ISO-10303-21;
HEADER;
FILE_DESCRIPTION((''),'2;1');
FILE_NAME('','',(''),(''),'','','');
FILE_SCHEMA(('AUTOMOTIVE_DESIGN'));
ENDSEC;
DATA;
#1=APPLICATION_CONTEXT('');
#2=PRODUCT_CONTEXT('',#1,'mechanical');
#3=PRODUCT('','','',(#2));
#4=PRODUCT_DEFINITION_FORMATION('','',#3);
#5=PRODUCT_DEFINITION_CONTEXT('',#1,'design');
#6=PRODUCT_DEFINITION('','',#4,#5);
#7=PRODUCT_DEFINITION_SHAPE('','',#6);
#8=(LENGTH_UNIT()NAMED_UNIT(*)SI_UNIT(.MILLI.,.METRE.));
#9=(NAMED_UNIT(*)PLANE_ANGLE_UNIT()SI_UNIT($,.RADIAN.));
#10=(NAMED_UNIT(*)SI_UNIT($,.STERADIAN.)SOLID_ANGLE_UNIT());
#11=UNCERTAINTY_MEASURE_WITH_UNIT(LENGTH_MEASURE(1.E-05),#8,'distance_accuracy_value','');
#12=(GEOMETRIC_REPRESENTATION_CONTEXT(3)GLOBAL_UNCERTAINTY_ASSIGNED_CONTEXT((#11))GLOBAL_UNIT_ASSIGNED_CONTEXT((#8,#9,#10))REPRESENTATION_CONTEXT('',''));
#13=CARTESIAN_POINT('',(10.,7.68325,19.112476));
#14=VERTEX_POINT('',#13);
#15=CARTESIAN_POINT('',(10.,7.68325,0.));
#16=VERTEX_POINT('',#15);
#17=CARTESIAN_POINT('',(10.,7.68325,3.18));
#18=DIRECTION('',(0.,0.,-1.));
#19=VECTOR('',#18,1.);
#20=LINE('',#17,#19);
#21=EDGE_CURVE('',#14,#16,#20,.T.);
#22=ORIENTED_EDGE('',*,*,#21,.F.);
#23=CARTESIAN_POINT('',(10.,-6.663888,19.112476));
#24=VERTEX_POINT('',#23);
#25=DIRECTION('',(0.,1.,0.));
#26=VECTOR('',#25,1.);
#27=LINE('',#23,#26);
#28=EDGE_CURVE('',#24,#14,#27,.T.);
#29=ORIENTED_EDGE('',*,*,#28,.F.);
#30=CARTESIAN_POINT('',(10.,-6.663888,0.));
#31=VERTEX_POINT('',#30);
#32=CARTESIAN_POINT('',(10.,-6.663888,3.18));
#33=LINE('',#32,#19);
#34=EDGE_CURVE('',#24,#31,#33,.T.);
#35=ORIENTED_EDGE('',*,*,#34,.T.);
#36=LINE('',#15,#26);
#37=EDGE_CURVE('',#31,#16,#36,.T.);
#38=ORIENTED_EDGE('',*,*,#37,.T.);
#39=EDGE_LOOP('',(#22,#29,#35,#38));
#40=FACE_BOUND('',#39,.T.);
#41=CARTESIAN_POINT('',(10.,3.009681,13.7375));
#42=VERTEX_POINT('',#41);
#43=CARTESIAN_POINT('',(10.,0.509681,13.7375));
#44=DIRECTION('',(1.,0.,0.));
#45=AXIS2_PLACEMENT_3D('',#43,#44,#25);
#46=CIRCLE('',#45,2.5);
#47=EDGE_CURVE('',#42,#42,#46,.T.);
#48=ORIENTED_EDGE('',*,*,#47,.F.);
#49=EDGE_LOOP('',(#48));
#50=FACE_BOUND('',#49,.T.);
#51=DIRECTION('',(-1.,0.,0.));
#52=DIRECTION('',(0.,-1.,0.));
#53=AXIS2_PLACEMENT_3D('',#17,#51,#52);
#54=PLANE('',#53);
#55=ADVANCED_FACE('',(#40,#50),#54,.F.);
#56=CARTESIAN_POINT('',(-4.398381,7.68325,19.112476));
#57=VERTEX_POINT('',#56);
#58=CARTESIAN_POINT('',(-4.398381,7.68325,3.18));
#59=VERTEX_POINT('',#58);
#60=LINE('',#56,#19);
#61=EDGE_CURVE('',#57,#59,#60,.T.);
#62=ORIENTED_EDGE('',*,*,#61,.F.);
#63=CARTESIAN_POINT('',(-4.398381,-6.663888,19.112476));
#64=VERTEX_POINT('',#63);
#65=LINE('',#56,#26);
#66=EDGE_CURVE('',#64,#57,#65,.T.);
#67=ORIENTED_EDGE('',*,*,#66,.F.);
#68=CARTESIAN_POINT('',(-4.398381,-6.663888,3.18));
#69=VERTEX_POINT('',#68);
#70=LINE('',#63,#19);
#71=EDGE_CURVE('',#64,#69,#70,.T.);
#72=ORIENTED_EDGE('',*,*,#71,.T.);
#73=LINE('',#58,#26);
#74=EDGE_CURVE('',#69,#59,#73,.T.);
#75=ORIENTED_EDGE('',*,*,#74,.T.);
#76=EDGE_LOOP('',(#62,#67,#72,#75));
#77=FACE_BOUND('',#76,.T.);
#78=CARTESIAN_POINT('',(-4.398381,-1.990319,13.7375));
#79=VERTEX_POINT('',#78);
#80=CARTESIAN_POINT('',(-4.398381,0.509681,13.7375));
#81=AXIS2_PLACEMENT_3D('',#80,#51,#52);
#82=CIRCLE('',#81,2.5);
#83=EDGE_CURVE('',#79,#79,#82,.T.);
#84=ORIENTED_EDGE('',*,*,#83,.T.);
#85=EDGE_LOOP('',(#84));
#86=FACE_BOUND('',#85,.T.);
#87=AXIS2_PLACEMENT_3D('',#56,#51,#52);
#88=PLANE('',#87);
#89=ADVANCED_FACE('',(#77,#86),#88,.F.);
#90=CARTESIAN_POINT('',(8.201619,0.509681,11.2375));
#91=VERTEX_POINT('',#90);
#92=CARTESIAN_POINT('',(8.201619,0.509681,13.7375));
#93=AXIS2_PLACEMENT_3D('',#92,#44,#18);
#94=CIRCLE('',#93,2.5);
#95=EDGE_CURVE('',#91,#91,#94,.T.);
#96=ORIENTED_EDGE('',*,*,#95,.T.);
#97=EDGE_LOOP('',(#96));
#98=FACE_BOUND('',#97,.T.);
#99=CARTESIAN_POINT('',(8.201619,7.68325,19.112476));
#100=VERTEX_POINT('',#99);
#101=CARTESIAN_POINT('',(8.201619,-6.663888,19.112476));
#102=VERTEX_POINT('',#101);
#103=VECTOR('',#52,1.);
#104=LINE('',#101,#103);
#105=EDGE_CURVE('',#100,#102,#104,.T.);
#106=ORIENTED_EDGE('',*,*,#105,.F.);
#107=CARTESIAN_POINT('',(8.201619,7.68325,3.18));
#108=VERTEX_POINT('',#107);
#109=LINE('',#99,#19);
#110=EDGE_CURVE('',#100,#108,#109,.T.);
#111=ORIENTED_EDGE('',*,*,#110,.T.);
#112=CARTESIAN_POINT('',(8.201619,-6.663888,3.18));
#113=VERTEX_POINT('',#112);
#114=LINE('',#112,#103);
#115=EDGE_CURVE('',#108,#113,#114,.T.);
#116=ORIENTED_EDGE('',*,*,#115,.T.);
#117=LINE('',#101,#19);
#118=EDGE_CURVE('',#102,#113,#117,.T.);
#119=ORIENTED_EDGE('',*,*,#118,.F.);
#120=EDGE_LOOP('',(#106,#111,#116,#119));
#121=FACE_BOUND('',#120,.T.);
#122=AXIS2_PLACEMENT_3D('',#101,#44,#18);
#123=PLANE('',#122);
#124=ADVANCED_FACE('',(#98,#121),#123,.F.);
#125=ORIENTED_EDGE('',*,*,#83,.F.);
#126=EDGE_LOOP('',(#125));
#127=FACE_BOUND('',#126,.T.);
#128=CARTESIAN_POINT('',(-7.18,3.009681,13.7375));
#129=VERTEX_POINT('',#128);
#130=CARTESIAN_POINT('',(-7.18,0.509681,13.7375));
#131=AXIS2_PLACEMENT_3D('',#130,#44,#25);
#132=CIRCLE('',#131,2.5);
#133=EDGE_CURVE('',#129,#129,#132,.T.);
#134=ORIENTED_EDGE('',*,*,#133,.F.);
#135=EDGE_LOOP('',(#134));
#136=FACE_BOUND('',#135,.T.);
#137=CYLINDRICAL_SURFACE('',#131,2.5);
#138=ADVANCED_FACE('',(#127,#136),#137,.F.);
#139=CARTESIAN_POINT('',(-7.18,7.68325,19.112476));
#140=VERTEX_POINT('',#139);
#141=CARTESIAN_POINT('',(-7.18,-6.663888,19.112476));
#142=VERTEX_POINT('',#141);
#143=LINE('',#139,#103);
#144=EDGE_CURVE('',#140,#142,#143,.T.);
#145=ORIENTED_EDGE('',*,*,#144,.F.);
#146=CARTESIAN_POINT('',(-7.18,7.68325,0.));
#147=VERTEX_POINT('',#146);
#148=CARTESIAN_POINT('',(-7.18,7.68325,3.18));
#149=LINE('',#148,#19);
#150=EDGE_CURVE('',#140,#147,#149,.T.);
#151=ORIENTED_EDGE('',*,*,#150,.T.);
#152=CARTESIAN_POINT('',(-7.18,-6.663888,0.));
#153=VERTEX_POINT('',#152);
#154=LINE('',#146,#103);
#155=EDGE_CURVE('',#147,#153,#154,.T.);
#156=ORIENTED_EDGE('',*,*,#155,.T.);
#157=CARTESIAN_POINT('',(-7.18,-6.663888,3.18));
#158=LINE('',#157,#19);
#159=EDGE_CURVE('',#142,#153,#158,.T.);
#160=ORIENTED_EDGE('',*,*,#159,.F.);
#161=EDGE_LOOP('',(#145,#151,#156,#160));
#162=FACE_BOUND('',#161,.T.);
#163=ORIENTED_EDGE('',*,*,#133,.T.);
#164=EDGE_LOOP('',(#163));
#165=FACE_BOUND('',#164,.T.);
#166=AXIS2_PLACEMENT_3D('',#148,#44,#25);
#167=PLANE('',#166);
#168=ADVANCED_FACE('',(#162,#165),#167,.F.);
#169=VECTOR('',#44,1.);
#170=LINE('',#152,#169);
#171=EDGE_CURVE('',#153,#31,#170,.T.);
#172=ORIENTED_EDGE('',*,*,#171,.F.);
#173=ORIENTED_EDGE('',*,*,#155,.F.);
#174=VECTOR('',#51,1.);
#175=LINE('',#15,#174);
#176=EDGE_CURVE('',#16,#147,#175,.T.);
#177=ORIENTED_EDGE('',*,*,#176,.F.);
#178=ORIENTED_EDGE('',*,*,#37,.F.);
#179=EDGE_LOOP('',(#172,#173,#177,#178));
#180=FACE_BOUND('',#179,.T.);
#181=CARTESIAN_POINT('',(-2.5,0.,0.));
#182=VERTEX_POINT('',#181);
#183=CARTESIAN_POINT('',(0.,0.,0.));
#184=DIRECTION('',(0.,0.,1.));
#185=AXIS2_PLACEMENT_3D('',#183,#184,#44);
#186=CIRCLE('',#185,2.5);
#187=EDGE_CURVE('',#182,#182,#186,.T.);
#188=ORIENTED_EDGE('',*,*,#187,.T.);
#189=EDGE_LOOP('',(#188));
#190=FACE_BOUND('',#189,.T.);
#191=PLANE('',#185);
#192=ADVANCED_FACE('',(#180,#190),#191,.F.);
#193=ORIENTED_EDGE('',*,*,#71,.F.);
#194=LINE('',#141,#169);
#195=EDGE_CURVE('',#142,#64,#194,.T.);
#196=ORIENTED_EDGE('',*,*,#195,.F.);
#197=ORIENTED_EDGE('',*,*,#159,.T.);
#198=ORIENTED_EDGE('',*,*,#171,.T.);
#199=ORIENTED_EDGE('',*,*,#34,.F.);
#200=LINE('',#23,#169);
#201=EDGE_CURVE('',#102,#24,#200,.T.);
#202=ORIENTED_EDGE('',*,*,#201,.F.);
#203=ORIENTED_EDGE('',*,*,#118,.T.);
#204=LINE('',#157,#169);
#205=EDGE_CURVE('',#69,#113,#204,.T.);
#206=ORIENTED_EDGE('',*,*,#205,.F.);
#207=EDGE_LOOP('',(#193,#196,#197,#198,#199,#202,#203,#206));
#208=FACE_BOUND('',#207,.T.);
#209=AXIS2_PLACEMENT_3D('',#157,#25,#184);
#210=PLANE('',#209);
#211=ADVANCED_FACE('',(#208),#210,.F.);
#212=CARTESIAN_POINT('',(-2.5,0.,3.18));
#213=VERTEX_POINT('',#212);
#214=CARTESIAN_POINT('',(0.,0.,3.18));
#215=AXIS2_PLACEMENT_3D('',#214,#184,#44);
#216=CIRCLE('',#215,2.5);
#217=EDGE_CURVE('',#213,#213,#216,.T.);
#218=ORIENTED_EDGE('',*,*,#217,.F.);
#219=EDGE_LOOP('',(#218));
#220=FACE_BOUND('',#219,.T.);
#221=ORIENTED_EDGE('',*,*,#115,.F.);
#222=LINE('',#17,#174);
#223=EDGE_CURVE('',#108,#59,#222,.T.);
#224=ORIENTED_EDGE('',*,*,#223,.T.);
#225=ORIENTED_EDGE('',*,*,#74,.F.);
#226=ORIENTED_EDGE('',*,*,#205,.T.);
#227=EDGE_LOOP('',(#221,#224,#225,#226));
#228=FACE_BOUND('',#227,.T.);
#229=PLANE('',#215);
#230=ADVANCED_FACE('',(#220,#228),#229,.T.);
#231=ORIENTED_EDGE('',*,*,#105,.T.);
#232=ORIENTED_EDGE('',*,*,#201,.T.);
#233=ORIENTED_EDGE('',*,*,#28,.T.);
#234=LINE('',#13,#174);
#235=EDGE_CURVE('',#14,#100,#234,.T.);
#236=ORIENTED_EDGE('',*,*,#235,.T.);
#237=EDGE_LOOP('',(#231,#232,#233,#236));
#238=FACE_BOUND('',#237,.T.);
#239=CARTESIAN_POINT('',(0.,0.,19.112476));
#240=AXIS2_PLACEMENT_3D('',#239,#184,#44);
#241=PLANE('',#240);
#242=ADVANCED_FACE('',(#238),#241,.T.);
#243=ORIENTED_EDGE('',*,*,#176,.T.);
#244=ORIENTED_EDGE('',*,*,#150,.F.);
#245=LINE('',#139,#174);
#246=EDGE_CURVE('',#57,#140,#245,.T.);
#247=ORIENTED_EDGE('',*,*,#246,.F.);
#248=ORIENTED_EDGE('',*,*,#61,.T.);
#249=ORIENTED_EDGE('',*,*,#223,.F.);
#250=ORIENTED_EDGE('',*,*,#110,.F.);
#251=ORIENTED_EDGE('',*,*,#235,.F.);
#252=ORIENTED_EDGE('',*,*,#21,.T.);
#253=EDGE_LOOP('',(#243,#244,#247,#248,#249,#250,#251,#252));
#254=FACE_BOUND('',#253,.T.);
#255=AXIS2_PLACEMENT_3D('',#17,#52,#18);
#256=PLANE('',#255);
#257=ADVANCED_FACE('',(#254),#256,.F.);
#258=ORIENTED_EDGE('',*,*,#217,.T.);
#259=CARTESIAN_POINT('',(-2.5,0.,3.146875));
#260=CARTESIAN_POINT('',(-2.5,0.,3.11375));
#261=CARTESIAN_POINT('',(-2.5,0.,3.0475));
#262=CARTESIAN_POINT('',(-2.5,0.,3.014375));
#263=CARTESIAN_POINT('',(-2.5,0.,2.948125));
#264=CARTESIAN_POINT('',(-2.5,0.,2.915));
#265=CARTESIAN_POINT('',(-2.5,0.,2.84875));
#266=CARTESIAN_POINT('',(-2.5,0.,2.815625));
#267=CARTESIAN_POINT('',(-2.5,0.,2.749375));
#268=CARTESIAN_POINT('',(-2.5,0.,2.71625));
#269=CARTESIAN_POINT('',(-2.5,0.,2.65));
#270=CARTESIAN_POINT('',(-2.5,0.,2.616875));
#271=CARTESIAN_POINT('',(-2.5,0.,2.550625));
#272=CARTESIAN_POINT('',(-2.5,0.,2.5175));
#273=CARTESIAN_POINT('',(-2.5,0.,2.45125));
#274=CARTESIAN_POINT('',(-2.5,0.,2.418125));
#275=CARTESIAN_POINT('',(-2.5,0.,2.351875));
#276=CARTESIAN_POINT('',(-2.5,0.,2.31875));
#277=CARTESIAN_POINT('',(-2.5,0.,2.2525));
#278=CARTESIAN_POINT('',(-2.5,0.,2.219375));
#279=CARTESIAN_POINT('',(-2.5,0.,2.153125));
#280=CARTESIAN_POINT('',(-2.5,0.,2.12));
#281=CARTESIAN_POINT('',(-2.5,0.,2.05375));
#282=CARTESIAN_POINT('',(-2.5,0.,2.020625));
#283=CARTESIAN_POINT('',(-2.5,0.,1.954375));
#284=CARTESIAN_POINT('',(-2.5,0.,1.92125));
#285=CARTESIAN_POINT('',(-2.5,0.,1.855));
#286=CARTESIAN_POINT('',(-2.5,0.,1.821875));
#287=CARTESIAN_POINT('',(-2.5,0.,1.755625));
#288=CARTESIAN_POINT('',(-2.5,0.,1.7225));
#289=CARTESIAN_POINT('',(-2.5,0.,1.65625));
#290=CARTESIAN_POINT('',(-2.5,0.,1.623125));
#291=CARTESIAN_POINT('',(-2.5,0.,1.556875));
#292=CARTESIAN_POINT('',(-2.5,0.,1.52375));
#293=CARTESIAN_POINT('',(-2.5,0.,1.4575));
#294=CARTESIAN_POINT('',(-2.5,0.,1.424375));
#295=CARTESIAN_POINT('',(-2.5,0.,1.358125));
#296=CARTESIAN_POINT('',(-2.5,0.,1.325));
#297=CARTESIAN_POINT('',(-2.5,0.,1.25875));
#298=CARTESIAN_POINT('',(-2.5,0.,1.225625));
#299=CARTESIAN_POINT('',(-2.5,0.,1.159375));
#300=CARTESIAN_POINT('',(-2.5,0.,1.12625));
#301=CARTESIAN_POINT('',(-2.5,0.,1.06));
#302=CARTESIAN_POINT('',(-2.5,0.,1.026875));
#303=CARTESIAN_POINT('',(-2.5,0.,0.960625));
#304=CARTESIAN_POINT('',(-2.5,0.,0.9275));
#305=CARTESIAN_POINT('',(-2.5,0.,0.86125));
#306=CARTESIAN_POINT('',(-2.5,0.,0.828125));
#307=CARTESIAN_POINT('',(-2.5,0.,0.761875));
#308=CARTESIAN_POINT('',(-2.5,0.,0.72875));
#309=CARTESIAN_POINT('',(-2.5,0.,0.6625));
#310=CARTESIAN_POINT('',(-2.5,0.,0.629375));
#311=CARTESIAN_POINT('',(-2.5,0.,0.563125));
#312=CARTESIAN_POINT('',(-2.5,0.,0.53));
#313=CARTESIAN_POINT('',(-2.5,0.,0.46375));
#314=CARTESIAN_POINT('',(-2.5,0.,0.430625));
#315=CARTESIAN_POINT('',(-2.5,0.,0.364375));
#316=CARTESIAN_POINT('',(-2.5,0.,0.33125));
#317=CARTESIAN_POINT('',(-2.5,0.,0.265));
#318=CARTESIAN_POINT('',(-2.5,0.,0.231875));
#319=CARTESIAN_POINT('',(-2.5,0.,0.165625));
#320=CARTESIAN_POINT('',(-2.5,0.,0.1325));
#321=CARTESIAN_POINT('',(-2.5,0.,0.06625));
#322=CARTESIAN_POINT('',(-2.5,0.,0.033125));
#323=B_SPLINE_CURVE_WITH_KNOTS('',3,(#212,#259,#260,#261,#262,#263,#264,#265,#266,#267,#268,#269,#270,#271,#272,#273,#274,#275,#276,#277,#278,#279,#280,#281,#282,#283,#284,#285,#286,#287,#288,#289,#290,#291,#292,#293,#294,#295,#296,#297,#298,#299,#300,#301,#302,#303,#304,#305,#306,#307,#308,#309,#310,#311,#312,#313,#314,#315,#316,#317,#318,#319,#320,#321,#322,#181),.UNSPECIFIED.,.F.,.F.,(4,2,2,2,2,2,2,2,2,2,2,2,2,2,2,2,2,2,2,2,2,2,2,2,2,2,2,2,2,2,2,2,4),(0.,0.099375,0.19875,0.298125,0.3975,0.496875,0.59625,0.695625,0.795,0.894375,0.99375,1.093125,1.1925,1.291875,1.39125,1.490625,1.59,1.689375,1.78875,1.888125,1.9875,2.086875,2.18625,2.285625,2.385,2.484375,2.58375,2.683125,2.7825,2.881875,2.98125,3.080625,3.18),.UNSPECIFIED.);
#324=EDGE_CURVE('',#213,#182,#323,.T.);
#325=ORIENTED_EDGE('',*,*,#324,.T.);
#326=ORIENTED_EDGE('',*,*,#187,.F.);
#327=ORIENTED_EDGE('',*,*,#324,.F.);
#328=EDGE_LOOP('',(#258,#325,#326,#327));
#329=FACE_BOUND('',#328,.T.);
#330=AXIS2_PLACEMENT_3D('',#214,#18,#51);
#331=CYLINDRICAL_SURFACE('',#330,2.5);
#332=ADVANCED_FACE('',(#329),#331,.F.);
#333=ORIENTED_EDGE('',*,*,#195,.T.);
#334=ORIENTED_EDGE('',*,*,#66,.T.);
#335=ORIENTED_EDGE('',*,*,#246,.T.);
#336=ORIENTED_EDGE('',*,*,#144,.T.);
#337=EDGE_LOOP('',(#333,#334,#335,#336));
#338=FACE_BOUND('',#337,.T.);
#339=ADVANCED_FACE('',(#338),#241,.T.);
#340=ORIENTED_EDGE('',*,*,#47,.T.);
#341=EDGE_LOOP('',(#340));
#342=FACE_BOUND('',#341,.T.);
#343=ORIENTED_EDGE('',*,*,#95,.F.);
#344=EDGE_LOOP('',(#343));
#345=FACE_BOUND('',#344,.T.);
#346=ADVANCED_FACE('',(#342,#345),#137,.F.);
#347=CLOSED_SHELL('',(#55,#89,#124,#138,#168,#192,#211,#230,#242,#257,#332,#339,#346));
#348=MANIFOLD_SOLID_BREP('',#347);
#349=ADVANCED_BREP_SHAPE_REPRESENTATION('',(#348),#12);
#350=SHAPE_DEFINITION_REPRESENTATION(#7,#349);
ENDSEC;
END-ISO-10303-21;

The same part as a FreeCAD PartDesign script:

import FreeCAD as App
import Part
import Sketcher

doc = App.newDocument("Part")
params = doc.addObject("Spreadsheet::Sheet", "Params")
for row, (alias, value) in enumerate([
    ("sketch1_diameter", "5 mm"),
    ("sketch1_width", "17.18 mm"),
    ("pad1_length", "3.18 mm"),
    ("pad2_length", "15.932476 mm"),
    ("sketch3_diameter", "5 mm"),
], start=1):
    params.set(f"A{row}", alias)
    params.set(f"B{row}", "=" + value)
    params.setAlias(f"B{row}", alias)

body = doc.addObject("PartDesign::Body", "Body")

# Sketch on XY plane
sketch1 = body.newObject("Sketcher::SketchObject", "Sketch")
sketch1.AttachmentSupport = (doc.getObject("XY_Plane"), [""])
sketch1.MapMode = "FlatFace"
sketch1.addGeometry([
    Part.LineSegment(App.Vector(-7.2, 7.7, 0), App.Vector(-7.2, -6.7, 0)),  # 0
    Part.LineSegment(App.Vector(-7.2, -6.7, 0), App.Vector(10, -6.7, 0)),  # 1
    Part.LineSegment(App.Vector(10, -6.7, 0), App.Vector(10, 7.7, 0)),  # 2
    Part.LineSegment(App.Vector(10, 7.7, 0), App.Vector(-7.2, 7.7, 0)),  # 3
    Part.Circle(App.Vector(0, 0, 0), App.Vector(0, 0, 1), 2.5),  # 4
], False)
sketch1.addConstraint([
    Sketcher.Constraint("Coincident", 0, 2, 1, 1),
    Sketcher.Constraint("Coincident", 1, 2, 2, 1),
    Sketcher.Constraint("Coincident", 2, 2, 3, 1),
    Sketcher.Constraint("Coincident", 3, 2, 0, 1),
    Sketcher.Constraint("Vertical", 0),
    Sketcher.Constraint("Horizontal", 1),
    Sketcher.Constraint("Vertical", 2),
    Sketcher.Constraint("Horizontal", 3),
    Sketcher.Constraint("Coincident", 4, 3, -1, 1),
    Sketcher.Constraint("Diameter", 4, 5.0),
    Sketcher.Constraint("DistanceX", -1, 1, 1, 2, 10.0),
    Sketcher.Constraint("DistanceX", 1, 1, 1, 2, 17.18),
    Sketcher.Constraint("DistanceY", 0, 2, 0, 1, 14.347137),
    Sketcher.Constraint("DistanceY", -1, 1, 2, 2, 7.68325),
])
sketch1.setExpression("Constraints[9]", "Params.sketch1_diameter")
sketch1.setExpression("Constraints[11]", "Params.sketch1_width")
pad1 = body.newObject("PartDesign::Pad", "Pad")
pad1.Profile = sketch1
pad1.setExpression("Length", "Params.pad1_length")

# Sketch on XY plane
sketch2 = body.newObject("Sketcher::SketchObject", "Sketch001")
sketch2.AttachmentSupport = (doc.getObject("XY_Plane"), [""])
sketch2.MapMode = "FlatFace"
sketch2.AttachmentOffset = App.Placement(App.Vector(0, 0, 3.18), App.Rotation())
sketch2.addGeometry([
    Part.LineSegment(App.Vector(8.2, 7.7, 0), App.Vector(8.2, -6.7, 0)),  # 0
    Part.LineSegment(App.Vector(8.2, -6.7, 0), App.Vector(10, -6.7, 0)),  # 1
    Part.LineSegment(App.Vector(10, -6.7, 0), App.Vector(10, 7.7, 0)),  # 2
    Part.LineSegment(App.Vector(10, 7.7, 0), App.Vector(8.2, 7.7, 0)),  # 3
    Part.LineSegment(App.Vector(-7.2, 7.7, 0), App.Vector(-7.2, -6.7, 0)),  # 4
    Part.LineSegment(App.Vector(-7.2, -6.7, 0), App.Vector(-4.4, -6.7, 0)),  # 5
    Part.LineSegment(App.Vector(-4.4, -6.7, 0), App.Vector(-4.4, 7.7, 0)),  # 6
    Part.LineSegment(App.Vector(-4.4, 7.7, 0), App.Vector(-7.2, 7.7, 0)),  # 7
], False)
sketch2.addConstraint([
    Sketcher.Constraint("Coincident", 0, 2, 1, 1),
    Sketcher.Constraint("Coincident", 1, 2, 2, 1),
    Sketcher.Constraint("Coincident", 2, 2, 3, 1),
    Sketcher.Constraint("Coincident", 3, 2, 0, 1),
    Sketcher.Constraint("Coincident", 4, 2, 5, 1),
    Sketcher.Constraint("Coincident", 5, 2, 6, 1),
    Sketcher.Constraint("Coincident", 6, 2, 7, 1),
    Sketcher.Constraint("Coincident", 7, 2, 4, 1),
    Sketcher.Constraint("Vertical", 0),
    Sketcher.Constraint("Horizontal", 1),
    Sketcher.Constraint("Vertical", 2),
    Sketcher.Constraint("Horizontal", 3),
    Sketcher.Constraint("Vertical", 4),
    Sketcher.Constraint("Horizontal", 5),
    Sketcher.Constraint("Vertical", 6),
    Sketcher.Constraint("Horizontal", 7),
    Sketcher.Constraint("Horizontal", 1, 2, 4, 2),
    Sketcher.Constraint("Horizontal", 3, 2, 6, 2),
    Sketcher.Constraint("DistanceX", -1, 1, 1, 2, 10.0),
    Sketcher.Constraint("DistanceX", 5, 2, 0, 2, 12.6),
    Sketcher.Constraint("DistanceX", 4, 2, -1, 1, 7.18),
    Sketcher.Constraint("DistanceX", 1, 1, 1, 2, 1.798381),
    Sketcher.Constraint("DistanceY", 0, 2, 0, 1, 14.347137),
    Sketcher.Constraint("DistanceY", -1, 1, 2, 2, 7.68325),
])
pad2 = body.newObject("PartDesign::Pad", "Pad001")
pad2.Profile = sketch2
pad2.setExpression("Length", "Params.pad2_length")

# Sketch on YZ plane
sketch3 = body.newObject("Sketcher::SketchObject", "Sketch002")
sketch3.AttachmentSupport = (doc.getObject("YZ_Plane"), [""])
sketch3.MapMode = "FlatFace"
sketch3.AttachmentOffset = App.Placement(App.Vector(0, 0, 10), App.Rotation())
sketch3.addGeometry(Part.Circle(App.Vector(0.5, 13.7, 0), App.Vector(0, 0, 1), 2.5), False)
sketch3.addConstraint([
    Sketcher.Constraint("Diameter", 0, 5.0),
    Sketcher.Constraint("DistanceY", -1, 1, 0, 3, 13.7375),
    Sketcher.Constraint("DistanceX", -1, 1, 0, 3, 0.509681),
])
sketch3.setExpression("Constraints[0]", "Params.sketch3_diameter")
pocket1 = body.newObject("PartDesign::Pocket", "Pocket")
pocket1.Profile = sketch3
pocket1.Type = "ThroughAll"

doc.recompute()
